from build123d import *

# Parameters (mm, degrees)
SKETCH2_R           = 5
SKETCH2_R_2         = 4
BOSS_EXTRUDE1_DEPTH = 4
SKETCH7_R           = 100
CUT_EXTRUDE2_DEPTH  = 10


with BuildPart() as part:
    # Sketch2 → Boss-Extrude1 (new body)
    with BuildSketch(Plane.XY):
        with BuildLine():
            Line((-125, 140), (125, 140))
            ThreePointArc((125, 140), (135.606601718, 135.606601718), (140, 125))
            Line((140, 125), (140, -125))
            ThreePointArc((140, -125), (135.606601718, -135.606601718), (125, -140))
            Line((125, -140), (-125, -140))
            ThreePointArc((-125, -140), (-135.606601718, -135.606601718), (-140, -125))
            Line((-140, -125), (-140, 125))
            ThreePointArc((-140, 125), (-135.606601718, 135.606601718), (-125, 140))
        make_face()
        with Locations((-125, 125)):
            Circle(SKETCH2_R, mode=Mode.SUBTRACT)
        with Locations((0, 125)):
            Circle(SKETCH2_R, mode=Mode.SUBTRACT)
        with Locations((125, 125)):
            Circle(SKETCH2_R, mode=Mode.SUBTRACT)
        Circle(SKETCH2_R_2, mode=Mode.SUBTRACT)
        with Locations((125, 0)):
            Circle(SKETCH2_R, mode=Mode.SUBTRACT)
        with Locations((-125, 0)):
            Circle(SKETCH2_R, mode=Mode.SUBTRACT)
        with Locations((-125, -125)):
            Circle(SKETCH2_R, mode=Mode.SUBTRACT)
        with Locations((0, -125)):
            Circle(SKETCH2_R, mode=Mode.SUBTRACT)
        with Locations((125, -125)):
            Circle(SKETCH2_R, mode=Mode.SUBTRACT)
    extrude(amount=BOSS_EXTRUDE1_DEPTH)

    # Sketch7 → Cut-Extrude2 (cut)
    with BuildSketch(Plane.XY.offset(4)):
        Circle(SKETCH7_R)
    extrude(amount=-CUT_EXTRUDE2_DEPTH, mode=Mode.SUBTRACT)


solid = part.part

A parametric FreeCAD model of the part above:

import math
import FreeCAD as App
import Part
import Sketcher
Q = App.Units.Quantity

doc = App.newDocument("Part")
body = doc.addObject("PartDesign::Body", "Body")

# Sketch on XY plane
sketch1 = body.newObject("Sketcher::SketchObject", "Sketch")
sketch1.AttachmentSupport = (doc.getObject("XY_Plane"), [""])
sketch1.MapMode = "FlatFace"
sketch1.addGeometry([
    Part.LineSegment(App.Vector(125, 140, 0), App.Vector(-125, 140, 0)),  # 0
    Part.ArcOfCircle(Part.Circle(App.Vector(-125, 125, 0), App.Vector(0, 0, 1), 15), math.radians(90), math.radians(180)),  # 1
    Part.LineSegment(App.Vector(-140, 125, 0), App.Vector(-140, -125, 0)),  # 2
    Part.ArcOfCircle(Part.Circle(App.Vector(-125, -125, 0), App.Vector(0, 0, 1), 15), math.radians(180), math.radians(270)),  # 3
    Part.LineSegment(App.Vector(-125, -140, 0), App.Vector(125, -140, 0)),  # 4
    Part.ArcOfCircle(Part.Circle(App.Vector(125, -125, 0), App.Vector(0, 0, 1), 15), math.radians(-90), math.radians(0)),  # 5
    Part.LineSegment(App.Vector(140, -125, 0), App.Vector(140, 125, 0)),  # 6
    Part.ArcOfCircle(Part.Circle(App.Vector(125, 125, 0), App.Vector(0, 0, 1), 15), math.radians(0), math.radians(90)),  # 7
    Part.Circle(App.Vector(125, -125, 0), App.Vector(0, 0, 1), 5),  # 8
    Part.Circle(App.Vector(0, -125, 0), App.Vector(0, 0, 1), 5),  # 9
    Part.Circle(App.Vector(-125, -125, 0), App.Vector(0, 0, 1), 5),  # 10
    Part.Circle(App.Vector(125, 0, 0), App.Vector(0, 0, 1), 5),  # 11
    Part.Circle(App.Vector(125, 125, 0), App.Vector(0, 0, 1), 5),  # 12
    Part.Circle(App.Vector(0, 0, 0), App.Vector(0, 0, 1), 4),  # 13
    Part.Circle(App.Vector(-125, 0, 0), App.Vector(0, 0, 1), 5),  # 14
    Part.Circle(App.Vector(0, 125, 0), App.Vector(0, 0, 1), 5),  # 15
    Part.Circle(App.Vector(-125, 125, 0), App.Vector(0, 0, 1), 5),  # 16
], False)
sketch1.addConstraint([
    Sketcher.Constraint("Tangent", 0, 2, 1, 1),
    Sketcher.Constraint("Tangent", 1, 2, 2, 1),
    Sketcher.Constraint("Tangent", 2, 2, 3, 1),
    Sketcher.Constraint("Tangent", 3, 2, 4, 1),
    Sketcher.Constraint("Tangent", 4, 2, 5, 1),
    Sketcher.Constraint("Tangent", 5, 2, 6, 1),
    Sketcher.Constraint("Tangent", 6, 2, 7, 1),
    Sketcher.Constraint("Tangent", 7, 2, 0, 1),
    Sketcher.Constraint("Horizontal", 0),
    Sketcher.Constraint("Vertical", 2),
    Sketcher.Constraint("Horizontal", 4),
    Sketcher.Constraint("Vertical", 6),
    Sketcher.Constraint("Coincident", 13, 3, -1, 1),
    Sketcher.Constraint("Coincident", 8, 3, 5, 3),
    Sketcher.Constraint("Coincident", 10, 3, 3, 3),
    Sketcher.Constraint("Coincident", 12, 3, 7, 3),
    Sketcher.Constraint("Coincident", 16, 3, 1, 3),
    Sketcher.Constraint("Equal", 1, 3),
    Sketcher.Constraint("Equal", 3, 5),
    Sketcher.Constraint("Equal", 5, 7),
    Sketcher.Constraint("Equal", 8, 9),
    Sketcher.Constraint("Equal", 9, 10),
    Sketcher.Constraint("Equal", 10, 11),
    Sketcher.Constraint("Equal", 11, 12),
    Sketcher.Constraint("Equal", 12, 14),
    Sketcher.Constraint("Equal", 14, 15),
    Sketcher.Constraint("Equal", 15, 16),
    Sketcher.Constraint("Symmetric", 1, 3, 5, 3, -1, 1),
    Sketcher.Constraint("Symmetric", 11, 3, 14, 3, -1, 1),
    Sketcher.Constraint("Symmetric", 9, 3, 15, 3, -1, 1),
    Sketcher.Constraint("PointOnObject", 9, 3, -2),
    Sketcher.Constraint("PointOnObject", 11, 3, -1),
    Sketcher.Constraint("Horizontal", 8, 3, 9, 3),
    Sketcher.Constraint("Vertical", 8, 3, 11, 3),
    Sketcher.Constraint("Equal", 4, 2),
    Sketcher.Constraint("Diameter", 8, Q("10 mm")),
    Sketcher.Constraint("Diameter", 13, Q("8 mm")),
    Sketcher.Constraint("Radius", 1, Q("15 mm")),
    Sketcher.Constraint("DistanceX", 0, 2, 0, 1, Q("250 mm")),
])
pad1 = body.newObject("PartDesign::Pad", "Pad")
pad1.Profile = sketch1
pad1.Length = 4

# Sketch on XY plane
sketch2 = body.newObject("Sketcher::SketchObject", "Sketch001")
sketch2.AttachmentSupport = (doc.getObject("XY_Plane"), [""])
sketch2.MapMode = "FlatFace"
sketch2.AttachmentOffset = App.Placement(App.Vector(0, 0, 4), App.Rotation())
sketch2.addGeometry(Part.Circle(App.Vector(0, 0, 0), App.Vector(0, 0, 1), 100), False)
sketch2.addConstraint([
    Sketcher.Constraint("Coincident", 0, 3, -1, 1),
    Sketcher.Constraint("Diameter", 0, Q("200 mm")),
])
pocket1 = body.newObject("PartDesign::Pocket", "Pocket")
pocket1.Profile = sketch2
pocket1.Length = 10

doc.recompute()
